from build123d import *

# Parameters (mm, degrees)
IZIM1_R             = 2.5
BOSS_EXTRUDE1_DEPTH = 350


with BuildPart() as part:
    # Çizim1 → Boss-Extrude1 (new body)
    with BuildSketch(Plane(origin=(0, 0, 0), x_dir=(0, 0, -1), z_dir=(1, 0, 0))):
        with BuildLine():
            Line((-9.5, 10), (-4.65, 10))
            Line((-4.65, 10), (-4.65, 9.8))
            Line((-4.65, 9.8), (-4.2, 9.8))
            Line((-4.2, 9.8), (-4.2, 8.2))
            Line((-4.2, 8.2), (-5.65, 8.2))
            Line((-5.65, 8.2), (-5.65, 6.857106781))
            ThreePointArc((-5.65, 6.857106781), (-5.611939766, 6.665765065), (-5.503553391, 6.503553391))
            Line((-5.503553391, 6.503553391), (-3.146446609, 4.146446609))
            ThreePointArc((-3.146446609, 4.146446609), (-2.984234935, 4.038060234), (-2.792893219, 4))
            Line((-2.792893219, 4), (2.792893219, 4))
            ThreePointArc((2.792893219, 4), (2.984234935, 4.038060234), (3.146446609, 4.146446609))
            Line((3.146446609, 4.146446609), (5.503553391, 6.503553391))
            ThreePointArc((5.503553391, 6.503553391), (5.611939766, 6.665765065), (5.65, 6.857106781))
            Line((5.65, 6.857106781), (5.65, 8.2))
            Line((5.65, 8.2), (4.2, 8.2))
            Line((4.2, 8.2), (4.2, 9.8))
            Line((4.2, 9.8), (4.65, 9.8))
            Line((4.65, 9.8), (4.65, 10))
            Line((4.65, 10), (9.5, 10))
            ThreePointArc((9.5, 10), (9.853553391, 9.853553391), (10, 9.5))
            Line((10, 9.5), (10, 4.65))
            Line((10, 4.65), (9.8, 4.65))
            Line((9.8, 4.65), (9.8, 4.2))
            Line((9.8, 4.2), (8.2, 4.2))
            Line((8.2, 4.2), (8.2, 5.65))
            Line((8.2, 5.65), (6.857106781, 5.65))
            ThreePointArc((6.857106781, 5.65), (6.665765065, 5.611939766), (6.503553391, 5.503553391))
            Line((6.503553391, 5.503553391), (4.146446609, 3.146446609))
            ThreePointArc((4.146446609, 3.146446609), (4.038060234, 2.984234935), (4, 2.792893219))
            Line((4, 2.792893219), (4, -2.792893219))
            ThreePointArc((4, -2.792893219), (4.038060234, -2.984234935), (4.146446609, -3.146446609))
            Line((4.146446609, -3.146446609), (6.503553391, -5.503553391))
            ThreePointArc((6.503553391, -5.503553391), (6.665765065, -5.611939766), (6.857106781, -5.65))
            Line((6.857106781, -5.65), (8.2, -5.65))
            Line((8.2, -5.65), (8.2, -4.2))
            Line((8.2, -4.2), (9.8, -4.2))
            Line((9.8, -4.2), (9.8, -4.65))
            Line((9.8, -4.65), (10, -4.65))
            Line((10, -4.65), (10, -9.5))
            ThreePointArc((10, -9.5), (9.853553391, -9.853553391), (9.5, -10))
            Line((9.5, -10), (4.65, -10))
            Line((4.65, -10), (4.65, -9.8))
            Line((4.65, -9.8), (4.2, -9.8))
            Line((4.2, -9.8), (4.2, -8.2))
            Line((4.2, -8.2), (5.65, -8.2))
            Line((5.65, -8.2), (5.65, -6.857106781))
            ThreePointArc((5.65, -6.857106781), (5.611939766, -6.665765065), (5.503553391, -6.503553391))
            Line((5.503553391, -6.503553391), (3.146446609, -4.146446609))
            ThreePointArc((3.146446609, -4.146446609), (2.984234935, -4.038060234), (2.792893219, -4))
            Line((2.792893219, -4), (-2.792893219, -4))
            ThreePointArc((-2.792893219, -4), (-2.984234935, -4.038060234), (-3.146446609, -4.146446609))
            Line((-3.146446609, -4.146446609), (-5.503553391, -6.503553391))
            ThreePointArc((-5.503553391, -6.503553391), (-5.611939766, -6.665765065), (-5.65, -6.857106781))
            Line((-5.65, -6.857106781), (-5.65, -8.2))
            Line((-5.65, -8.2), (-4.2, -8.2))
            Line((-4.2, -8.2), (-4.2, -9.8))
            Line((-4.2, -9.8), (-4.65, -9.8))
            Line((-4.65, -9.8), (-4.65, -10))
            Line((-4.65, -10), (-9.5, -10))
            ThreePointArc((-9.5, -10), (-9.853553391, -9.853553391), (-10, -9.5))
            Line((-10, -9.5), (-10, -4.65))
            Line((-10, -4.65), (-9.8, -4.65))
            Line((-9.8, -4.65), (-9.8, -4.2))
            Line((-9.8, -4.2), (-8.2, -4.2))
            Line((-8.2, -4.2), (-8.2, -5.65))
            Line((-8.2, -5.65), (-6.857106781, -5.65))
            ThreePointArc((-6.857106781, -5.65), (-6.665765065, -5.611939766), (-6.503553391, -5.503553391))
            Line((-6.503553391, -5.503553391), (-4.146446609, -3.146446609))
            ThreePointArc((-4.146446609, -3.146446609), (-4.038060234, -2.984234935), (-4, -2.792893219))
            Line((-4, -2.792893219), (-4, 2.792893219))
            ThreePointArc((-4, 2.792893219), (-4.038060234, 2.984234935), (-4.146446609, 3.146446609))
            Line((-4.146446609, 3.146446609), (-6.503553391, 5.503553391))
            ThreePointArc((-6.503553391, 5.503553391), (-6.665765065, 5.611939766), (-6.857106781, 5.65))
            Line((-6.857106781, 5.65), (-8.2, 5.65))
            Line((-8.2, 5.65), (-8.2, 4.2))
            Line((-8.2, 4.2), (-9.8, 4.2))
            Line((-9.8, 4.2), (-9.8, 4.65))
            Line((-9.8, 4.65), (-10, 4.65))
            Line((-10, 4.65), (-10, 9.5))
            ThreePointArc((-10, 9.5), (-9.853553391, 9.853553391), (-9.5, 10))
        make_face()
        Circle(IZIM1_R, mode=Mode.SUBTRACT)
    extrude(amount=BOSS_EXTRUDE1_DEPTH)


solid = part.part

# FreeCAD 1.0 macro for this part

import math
import FreeCAD as App
import Part
import Sketcher
from FreeCAD import Vector

doc = App.newDocument("Part")
body = doc.addObject("PartDesign::Body", "Body")

sketch1 = body.newObject("Sketcher::SketchObject", "Sketch")
sketch1.AttachmentSupport = (doc.getObject("YZ_Plane"), [""])
sketch1.MapMode = "FlatFace"
sketch1.addGeometry([
    Part.LineSegment(Vector(10, 4.65, 0), Vector(10, 9.5, 0)),
    Part.ArcOfCircle(Part.Circle(Vector(9.5, 9.5, 0), Vector(0, 0, 1), 0.5), math.radians(0), math.radians(90)),
    Part.LineSegment(Vector(9.5, 10, 0), Vector(4.65, 10, 0)),
    Part.LineSegment(Vector(4.65, 10, 0), Vector(4.65, 9.8, 0)),
    Part.LineSegment(Vector(4.65, 9.8, 0), Vector(4.2, 9.8, 0)),
    Part.LineSegment(Vector(4.2, 9.8, 0), Vector(4.2, 8.2, 0)),
    Part.LineSegment(Vector(4.2, 8.2, 0), Vector(5.65, 8.2, 0)),
    Part.LineSegment(Vector(5.65, 8.2, 0), Vector(5.65, 6.86, 0)),
    Part.ArcOfCircle(Part.Circle(Vector(5.15, 6.86, 0), Vector(0, 0, 1), 0.5), math.radians(-45), math.radians(0)),
    Part.LineSegment(Vector(5.5, 6.5, 0), Vector(3.15, 4.15, 0)),
    Part.ArcOfCircle(Part.Circle(Vector(2.79, 4.5, 0), Vector(0, 0, 1), 0.5), math.radians(-90), math.radians(-45)),
    Part.LineSegment(Vector(2.79, 4, 0), Vector(-2.79, 4, 0)),
    Part.ArcOfCircle(Part.Circle(Vector(-2.79, 4.5, 0), Vector(0, 0, 1), 0.5), math.radians(-135), math.radians(-90)),
    Part.LineSegment(Vector(-3.15, 4.15, 0), Vector(-5.5, 6.5, 0)),
    Part.ArcOfCircle(Part.Circle(Vector(-5.15, 6.86, 0), Vector(0, 0, 1), 0.5), math.radians(-180), math.radians(-135)),
    Part.LineSegment(Vector(-5.65, 6.86, 0), Vector(-5.65, 8.2, 0)),
    Part.LineSegment(Vector(-5.65, 8.2, 0), Vector(-4.2, 8.2, 0)),
    Part.LineSegment(Vector(-4.2, 8.2, 0), Vector(-4.2, 9.8, 0)),
    Part.LineSegment(Vector(-4.2, 9.8, 0), Vector(-4.65, 9.8, 0)),
    Part.LineSegment(Vector(-4.65, 9.8, 0), Vector(-4.65, 10, 0)),
    Part.LineSegment(Vector(-4.65, 10, 0), Vector(-9.5, 10, 0)),
    Part.ArcOfCircle(Part.Circle(Vector(-9.5, 9.5, 0), Vector(0, 0, 1), 0.5), math.radians(90), math.radians(180)),
    Part.LineSegment(Vector(-10, 9.5, 0), Vector(-10, 4.65, 0)),
    Part.LineSegment(Vector(-10, 4.65, 0), Vector(-9.8, 4.65, 0)),
    Part.LineSegment(Vector(-9.8, 4.65, 0), Vector(-9.8, 4.2, 0)),
    Part.LineSegment(Vector(-9.8, 4.2, 0), Vector(-8.2, 4.2, 0)),
    Part.LineSegment(Vector(-8.2, 4.2, 0), Vector(-8.2, 5.65, 0)),
    Part.LineSegment(Vector(-8.2, 5.65, 0), Vector(-6.86, 5.65, 0)),
    Part.ArcOfCircle(Part.Circle(Vector(-6.86, 5.15, 0), Vector(0, 0, 1), 0.5), math.radians(45), math.radians(90)),
    Part.LineSegment(Vector(-6.5, 5.5, 0), Vector(-4.15, 3.15, 0)),
    Part.ArcOfCircle(Part.Circle(Vector(-4.5, 2.79, 0), Vector(0, 0, 1), 0.5), math.radians(0), math.radians(45)),
    Part.LineSegment(Vector(-4, 2.79, 0), Vector(-4, -2.79, 0)),
    Part.ArcOfCircle(Part.Circle(Vector(-4.5, -2.79, 0), Vector(0, 0, 1), 0.5), math.radians(-45), math.radians(0)),
    Part.LineSegment(Vector(-4.15, -3.15, 0), Vector(-6.5, -5.5, 0)),
    Part.ArcOfCircle(Part.Circle(Vector(-6.86, -5.15, 0), Vector(0, 0, 1), 0.5), math.radians(-90), math.radians(-45)),
    Part.LineSegment(Vector(-6.86, -5.65, 0), Vector(-8.2, -5.65, 0)),
    Part.LineSegment(Vector(-8.2, -5.65, 0), Vector(-8.2, -4.2, 0)),
    Part.LineSegment(Vector(-8.2, -4.2, 0), Vector(-9.8, -4.2, 0)),
    Part.LineSegment(Vector(-9.8, -4.2, 0), Vector(-9.8, -4.65, 0)),
    Part.LineSegment(Vector(-9.8, -4.65, 0), Vector(-10, -4.65, 0)),
    Part.LineSegment(Vector(-10, -4.65, 0), Vector(-10, -9.5, 0)),
    Part.ArcOfCircle(Part.Circle(Vector(-9.5, -9.5, 0), Vector(0, 0, 1), 0.5), math.radians(180), math.radians(270)),
    Part.LineSegment(Vector(-9.5, -10, 0), Vector(-4.65, -10, 0)),
    Part.LineSegment(Vector(-4.65, -10, 0), Vector(-4.65, -9.8, 0)),
    Part.LineSegment(Vector(-4.65, -9.8, 0), Vector(-4.2, -9.8, 0)),
    Part.LineSegment(Vector(-4.2, -9.8, 0), Vector(-4.2, -8.2, 0)),
    Part.LineSegment(Vector(-4.2, -8.2, 0), Vector(-5.65, -8.2, 0)),
    Part.LineSegment(Vector(-5.65, -8.2, 0), Vector(-5.65, -6.86, 0)),
    Part.ArcOfCircle(Part.Circle(Vector(-5.15, -6.86, 0), Vector(0, 0, 1), 0.5), math.radians(135), math.radians(180)),
    Part.LineSegment(Vector(-5.5, -6.5, 0), Vector(-3.15, -4.15, 0)),
    Part.ArcOfCircle(Part.Circle(Vector(-2.79, -4.5, 0), Vector(0, 0, 1), 0.5), math.radians(90), math.radians(135)),
    Part.LineSegment(Vector(-2.79, -4, 0), Vector(2.79, -4, 0)),
    Part.ArcOfCircle(Part.Circle(Vector(2.79, -4.5, 0), Vector(0, 0, 1), 0.5), math.radians(45), math.radians(90)),
    Part.LineSegment(Vector(3.15, -4.15, 0), Vector(5.5, -6.5, 0)),
    Part.ArcOfCircle(Part.Circle(Vector(5.15, -6.86, 0), Vector(0, 0, 1), 0.5), math.radians(0), math.radians(45)),
    Part.LineSegment(Vector(5.65, -6.86, 0), Vector(5.65, -8.2, 0)),
    Part.LineSegment(Vector(5.65, -8.2, 0), Vector(4.2, -8.2, 0)),
    Part.LineSegment(Vector(4.2, -8.2, 0), Vector(4.2, -9.8, 0)),
    Part.LineSegment(Vector(4.2, -9.8, 0), Vector(4.65, -9.8, 0)),
    Part.LineSegment(Vector(4.65, -9.8, 0), Vector(4.65, -10, 0)),
    Part.LineSegment(Vector(4.65, -10, 0), Vector(9.5, -10, 0)),
    Part.ArcOfCircle(Part.Circle(Vector(9.5, -9.5, 0), Vector(0, 0, 1), 0.5), math.radians(-90), math.radians(0)),
    Part.LineSegment(Vector(10, -9.5, 0), Vector(10, -4.65, 0)),
    Part.LineSegment(Vector(10, -4.65, 0), Vector(9.8, -4.65, 0)),
    Part.LineSegment(Vector(9.8, -4.65, 0), Vector(9.8, -4.2, 0)),
    Part.LineSegment(Vector(9.8, -4.2, 0), Vector(8.2, -4.2, 0)),
    Part.LineSegment(Vector(8.2, -4.2, 0), Vector(8.2, -5.65, 0)),
    Part.LineSegment(Vector(8.2, -5.65, 0), Vector(6.86, -5.65, 0)),
    Part.ArcOfCircle(Part.Circle(Vector(6.86, -5.15, 0), Vector(0, 0, 1), 0.5), math.radians(-135), math.radians(-90)),
    Part.LineSegment(Vector(6.5, -5.5, 0), Vector(4.15, -3.15, 0)),
    Part.ArcOfCircle(Part.Circle(Vector(4.5, -2.79, 0), Vector(0, 0, 1), 0.5), math.radians(-180), math.radians(-135)),
    Part.LineSegment(Vector(4, -2.79, 0), Vector(4, 2.79, 0)),
    Part.ArcOfCircle(Part.Circle(Vector(4.5, 2.79, 0), Vector(0, 0, 1), 0.5), math.radians(135), math.radians(180)),
    Part.LineSegment(Vector(4.15, 3.15, 0), Vector(6.5, 5.5, 0)),
    Part.ArcOfCircle(Part.Circle(Vector(6.86, 5.15, 0), Vector(0, 0, 1), 0.5), math.radians(90), math.radians(135)),
    Part.LineSegment(Vector(6.86, 5.65, 0), Vector(8.2, 5.65, 0)),
    Part.LineSegment(Vector(8.2, 5.65, 0), Vector(8.2, 4.2, 0)),
    Part.LineSegment(Vector(8.2, 4.2, 0), Vector(9.8, 4.2, 0)),
    Part.LineSegment(Vector(9.8, 4.2, 0), Vector(9.8, 4.65, 0)),
    Part.LineSegment(Vector(9.8, 4.65, 0), Vector(10, 4.65, 0)),
    Part.Circle(Vector(0, 0, 0), Vector(0, 0, 1), 2.5),
], False)
sketch1.addConstraint([
    Sketcher.Constraint("Tangent", 0, 2, 1, 1),
    Sketcher.Constraint("Tangent", 1, 2, 2, 1),
    Sketcher.Constraint("Coincident", 2, 2, 3, 1),
    Sketcher.Constraint("Coincident", 3, 2, 4, 1),
    Sketcher.Constraint("Coincident", 4, 2, 5, 1),
    Sketcher.Constraint("Coincident", 5, 2, 6, 1),
    Sketcher.Constraint("Coincident", 6, 2, 7, 1),
    Sketcher.Constraint("Tangent", 7, 2, 8, 2),
    Sketcher.Constraint("Tangent", 8, 1, 9, 1),
    Sketcher.Constraint("Tangent", 9, 2, 10, 2),
    Sketcher.Constraint("Tangent", 10, 1, 11, 1),
    Sketcher.Constraint("Tangent", 11, 2, 12, 2),
    Sketcher.Constraint("Tangent", 12, 1, 13, 1),
    Sketcher.Constraint("Tangent", 13, 2, 14, 2),
    Sketcher.Constraint("Tangent", 14, 1, 15, 1),
    Sketcher.Constraint("Coincident", 15, 2, 16, 1),
    Sketcher.Constraint("Coincident", 16, 2, 17, 1),
    Sketcher.Constraint("Coincident", 17, 2, 18, 1),
    Sketcher.Constraint("Coincident", 18, 2, 19, 1),
    Sketcher.Constraint("Coincident", 19, 2, 20, 1),
    Sketcher.Constraint("Tangent", 20, 2, 21, 1),
    Sketcher.Constraint("Tangent", 21, 2, 22, 1),
    Sketcher.Constraint("Coincident", 22, 2, 23, 1),
    Sketcher.Constraint("Coincident", 23, 2, 24, 1),
    Sketcher.Constraint("Coincident", 24, 2, 25, 1),
    Sketcher.Constraint("Coincident", 25, 2, 26, 1),
    Sketcher.Constraint("Coincident", 26, 2, 27, 1),
    Sketcher.Constraint("Tangent", 27, 2, 28, 2),
    Sketcher.Constraint("Tangent", 28, 1, 29, 1),
    Sketcher.Constraint("Tangent", 29, 2, 30, 2),
    Sketcher.Constraint("Tangent", 30, 1, 31, 1),
    Sketcher.Constraint("Tangent", 31, 2, 32, 2),
    Sketcher.Constraint("Tangent", 32, 1, 33, 1),
    Sketcher.Constraint("Tangent", 33, 2, 34, 2),
    Sketcher.Constraint("Tangent", 34, 1, 35, 1),
    Sketcher.Constraint("Coincident", 35, 2, 36, 1),
    Sketcher.Constraint("Coincident", 36, 2, 37, 1),
    Sketcher.Constraint("Coincident", 37, 2, 38, 1),
    Sketcher.Constraint("Coincident", 38, 2, 39, 1),
    Sketcher.Constraint("Coincident", 39, 2, 40, 1),
    Sketcher.Constraint("Tangent", 40, 2, 41, 1),
    Sketcher.Constraint("Tangent", 41, 2, 42, 1),
    Sketcher.Constraint("Coincident", 42, 2, 43, 1),
    Sketcher.Constraint("Coincident", 43, 2, 44, 1),
    Sketcher.Constraint("Coincident", 44, 2, 45, 1),
    Sketcher.Constraint("Coincident", 45, 2, 46, 1),
    Sketcher.Constraint("Coincident", 46, 2, 47, 1),
    Sketcher.Constraint("Tangent", 47, 2, 48, 2),
    Sketcher.Constraint("Tangent", 48, 1, 49, 1),
    Sketcher.Constraint("Tangent", 49, 2, 50, 2),
    Sketcher.Constraint("Tangent", 50, 1, 51, 1),
    Sketcher.Constraint("Tangent", 51, 2, 52, 2),
    Sketcher.Constraint("Tangent", 52, 1, 53, 1),
    Sketcher.Constraint("Tangent", 53, 2, 54, 2),
    Sketcher.Constraint("Tangent", 54, 1, 55, 1),
    Sketcher.Constraint("Coincident", 55, 2, 56, 1),
    Sketcher.Constraint("Coincident", 56, 2, 57, 1),
    Sketcher.Constraint("Coincident", 57, 2, 58, 1),
    Sketcher.Constraint("Coincident", 58, 2, 59, 1),
    Sketcher.Constraint("Coincident", 59, 2, 60, 1),
    Sketcher.Constraint("Tangent", 60, 2, 61, 1),
    Sketcher.Constraint("Tangent", 61, 2, 62, 1),
    Sketcher.Constraint("Coincident", 62, 2, 63, 1),
    Sketcher.Constraint("Coincident", 63, 2, 64, 1),
    Sketcher.Constraint("Coincident", 64, 2, 65, 1),
    Sketcher.Constraint("Coincident", 65, 2, 66, 1),
    Sketcher.Constraint("Coincident", 66, 2, 67, 1),
    Sketcher.Constraint("Tangent", 67, 2, 68, 2),
    Sketcher.Constraint("Tangent", 68, 1, 69, 1),
    Sketcher.Constraint("Tangent", 69, 2, 70, 2),
    Sketcher.Constraint("Tangent", 70, 1, 71, 1),
    Sketcher.Constraint("Tangent", 71, 2, 72, 2),
    Sketcher.Constraint("Tangent", 72, 1, 73, 1),
    Sketcher.Constraint("Tangent", 73, 2, 74, 2),
    Sketcher.Constraint("Tangent", 74, 1, 75, 1),
    Sketcher.Constraint("Coincident", 75, 2, 76, 1),
    Sketcher.Constraint("Coincident", 76, 2, 77, 1),
    Sketcher.Constraint("Coincident", 77, 2, 78, 1),
    Sketcher.Constraint("Coincident", 78, 2, 79, 1),
    Sketcher.Constraint("Coincident", 79, 2, 0, 1),
    Sketcher.Constraint("Vertical", 0),
    Sketcher.Constraint("Horizontal", 2),
    Sketcher.Constraint("Vertical", 3),
    Sketcher.Constraint("Horizontal", 4),
    Sketcher.Constraint("Vertical", 5),
    Sketcher.Constraint("Horizontal", 6),
    Sketcher.Constraint("Vertical", 7),
    Sketcher.Constraint("Horizontal", 11),
    Sketcher.Constraint("Vertical", 15),
    Sketcher.Constraint("Horizontal", 16),
    Sketcher.Constraint("Vertical", 17),
    Sketcher.Constraint("Horizontal", 18),
    Sketcher.Constraint("Vertical", 19),
    Sketcher.Constraint("Horizontal", 20),
    Sketcher.Constraint("Vertical", 22),
    Sketcher.Constraint("Horizontal", 23),
    Sketcher.Constraint("Vertical", 24),
    Sketcher.Constraint("Horizontal", 25),
    Sketcher.Constraint("Vertical", 26),
    Sketcher.Constraint("Horizontal", 27),
    Sketcher.Constraint("Vertical", 31),
    Sketcher.Constraint("Horizontal", 35),
    Sketcher.Constraint("Vertical", 36),
    Sketcher.Constraint("Horizontal", 37),
    Sketcher.Constraint("Vertical", 38),
    Sketcher.Constraint("Horizontal", 39),
    Sketcher.Constraint("Vertical", 40),
    Sketcher.Constraint("Horizontal", 42),
    Sketcher.Constraint("Vertical", 43),
    Sketcher.Constraint("Horizontal", 44),
    Sketcher.Constraint("Vertical", 45),
    Sketcher.Constraint("Horizontal", 46),
    Sketcher.Constraint("Vertical", 47),
    Sketcher.Constraint("Horizontal", 51),
    Sketcher.Constraint("Vertical", 55),
    Sketcher.Constraint("Horizontal", 56),
    Sketcher.Constraint("Vertical", 57),
    Sketcher.Constraint("Horizontal", 58),
    Sketcher.Constraint("Vertical", 59),
    Sketcher.Constraint("Horizontal", 60),
    Sketcher.Constraint("Vertical", 62),
    Sketcher.Constraint("Horizontal", 63),
    Sketcher.Constraint("Vertical", 64),
    Sketcher.Constraint("Horizontal", 65),
    Sketcher.Constraint("Vertical", 66),
    Sketcher.Constraint("Horizontal", 67),
    Sketcher.Constraint("Vertical", 71),
    Sketcher.Constraint("Horizontal", 75),
    Sketcher.Constraint("Vertical", 76),
    Sketcher.Constraint("Horizontal", 77),
    Sketcher.Constraint("Vertical", 78),
    Sketcher.Constraint("Horizontal", 79),
    Sketcher.Constraint("Coincident", 80, 3, -1, 1),
    Sketcher.Constraint("Equal", 1, 8),
    Sketcher.Constraint("Equal", 8, 10),
    Sketcher.Constraint("Equal", 10, 12),
    Sketcher.Constraint("Equal", 12, 14),
    Sketcher.Constraint("Equal", 14, 21),
    Sketcher.Constraint("Equal", 21, 28),
    Sketcher.Constraint("Equal", 28, 30),
    Sketcher.Constraint("Equal", 30, 32),
    Sketcher.Constraint("Equal", 32, 34),
    Sketcher.Constraint("Equal", 34, 41),
    Sketcher.Constraint("Equal", 41, 48),
    Sketcher.Constraint("Equal", 48, 50),
    Sketcher.Constraint("Equal", 50, 52),
    Sketcher.Constraint("Equal", 52, 54),
    Sketcher.Constraint("Equal", 54, 61),
    Sketcher.Constraint("Equal", 61, 68),
    Sketcher.Constraint("Equal", 68, 70),
    Sketcher.Constraint("Equal", 70, 72),
    Sketcher.Constraint("Equal", 72, 74),
    Sketcher.Constraint("Symmetric", 1, 3, 41, 3, -1, 1),
    Sketcher.Constraint("Symmetric", 8, 3, 48, 3, -1, 1),
    Sketcher.Constraint("Symmetric", 10, 3, 50, 3, -1, 1),
    Sketcher.Constraint("Symmetric", 14, 3, 54, 3, -1, 1),
    Sketcher.Constraint("Symmetric", 21, 3, 61, 3, -1, 1),
    Sketcher.Constraint("Symmetric", 28, 3, 68, 3, -1, 1),
    Sketcher.Constraint("Symmetric", 30, 3, 70, 3, -1, 1),
    Sketcher.Constraint("Symmetric", 34, 3, 74, 3, -1, 1),
    Sketcher.Constraint("Symmetric", 3, 2, 43, 2, -1, 1),
    Sketcher.Constraint("Symmetric", 5, 2, 45, 2, -1, 1),
    Sketcher.Constraint("Symmetric", 16, 2, 56, 2, -1, 1),
    Sketcher.Constraint("Symmetric", 18, 2, 58, 2, -1, 1),
    Sketcher.Constraint("Symmetric", 23, 2, 63, 2, -1, 1),
    Sketcher.Constraint("Symmetric", 25, 2, 65, 2, -1, 1),
    Sketcher.Constraint("Symmetric", 36, 2, 76, 2, -1, 1),
    Sketcher.Constraint("Symmetric", 38, 2, 78, 2, -1, 1),
    Sketcher.Constraint("Symmetric", 8, 3, 14, 3, -2),
    Sketcher.Constraint("Symmetric", 1, 3, 21, 3, -2),
    Sketcher.Constraint("Symmetric", 34, 3, 68, 3, -2),
    Sketcher.Constraint("Symmetric", 5, 2, 16, 2, -2),
    Sketcher.Constraint("Symmetric", 3, 2, 18, 2, -2),
    Sketcher.Constraint("Symmetric", 38, 2, 63, 2, -2),
    Sketcher.Constraint("Symmetric", 36, 2, 65, 2, -2),
    Sketcher.Constraint("Perpendicular", 9, 13),
    Sketcher.Constraint("Parallel", 13, 29),
    Sketcher.Constraint("Perpendicular", 29, 33),
    Sketcher.Constraint("Perpendicular", 49, 53),
    Sketcher.Constraint("Perpendicular", 69, 73),
    Sketcher.Constraint("Horizontal", 32, 3, 70, 3),
    Sketcher.Constraint("Equal", 60, 0),
    Sketcher.Constraint("Equal", 79, 3),
    Sketcher.Constraint("Equal", 77, 5),
    Sketcher.Constraint("Equal", 75, 7),
    Sketcher.Constraint("Equal", 58, 24),
    Sketcher.Constraint("Equal", 56, 26),
    Sketcher.Constraint("Equal", 51, 31),
    Sketcher.Constraint("Equal", 13, 29),
    Sketcher.Constraint("Diameter", 80, 5.0),
    Sketcher.Constraint("Radius", 1, 0.5),
    Sketcher.Constraint("DistanceX", 23, 1, 23, 2, 0.2),
    Sketcher.Constraint("DistanceX", 25, 1, 25, 2, 1.6),
    Sketcher.Constraint("DistanceX", -1, 1, 0, 2, 10.0),
    Sketcher.Constraint("DistanceY", -1, 1, 10, 1, 4.0),
    Sketcher.Constraint("DistanceX", 2, 2, 2, 1, 4.85),
    Sketcher.Constraint("DistanceX", 4, 2, 4, 1, 0.45),
    Sketcher.Constraint("DistanceX", 6, 1, 6, 2, 1.45),
    Sketcher.Constraint("DistanceX", 11, 2, 11, 1, 5.585786),
])
pad1 = body.newObject("PartDesign::Pad", "Pad")
pad1.Profile = sketch1
pad1.Length = 350

doc.recompute()
